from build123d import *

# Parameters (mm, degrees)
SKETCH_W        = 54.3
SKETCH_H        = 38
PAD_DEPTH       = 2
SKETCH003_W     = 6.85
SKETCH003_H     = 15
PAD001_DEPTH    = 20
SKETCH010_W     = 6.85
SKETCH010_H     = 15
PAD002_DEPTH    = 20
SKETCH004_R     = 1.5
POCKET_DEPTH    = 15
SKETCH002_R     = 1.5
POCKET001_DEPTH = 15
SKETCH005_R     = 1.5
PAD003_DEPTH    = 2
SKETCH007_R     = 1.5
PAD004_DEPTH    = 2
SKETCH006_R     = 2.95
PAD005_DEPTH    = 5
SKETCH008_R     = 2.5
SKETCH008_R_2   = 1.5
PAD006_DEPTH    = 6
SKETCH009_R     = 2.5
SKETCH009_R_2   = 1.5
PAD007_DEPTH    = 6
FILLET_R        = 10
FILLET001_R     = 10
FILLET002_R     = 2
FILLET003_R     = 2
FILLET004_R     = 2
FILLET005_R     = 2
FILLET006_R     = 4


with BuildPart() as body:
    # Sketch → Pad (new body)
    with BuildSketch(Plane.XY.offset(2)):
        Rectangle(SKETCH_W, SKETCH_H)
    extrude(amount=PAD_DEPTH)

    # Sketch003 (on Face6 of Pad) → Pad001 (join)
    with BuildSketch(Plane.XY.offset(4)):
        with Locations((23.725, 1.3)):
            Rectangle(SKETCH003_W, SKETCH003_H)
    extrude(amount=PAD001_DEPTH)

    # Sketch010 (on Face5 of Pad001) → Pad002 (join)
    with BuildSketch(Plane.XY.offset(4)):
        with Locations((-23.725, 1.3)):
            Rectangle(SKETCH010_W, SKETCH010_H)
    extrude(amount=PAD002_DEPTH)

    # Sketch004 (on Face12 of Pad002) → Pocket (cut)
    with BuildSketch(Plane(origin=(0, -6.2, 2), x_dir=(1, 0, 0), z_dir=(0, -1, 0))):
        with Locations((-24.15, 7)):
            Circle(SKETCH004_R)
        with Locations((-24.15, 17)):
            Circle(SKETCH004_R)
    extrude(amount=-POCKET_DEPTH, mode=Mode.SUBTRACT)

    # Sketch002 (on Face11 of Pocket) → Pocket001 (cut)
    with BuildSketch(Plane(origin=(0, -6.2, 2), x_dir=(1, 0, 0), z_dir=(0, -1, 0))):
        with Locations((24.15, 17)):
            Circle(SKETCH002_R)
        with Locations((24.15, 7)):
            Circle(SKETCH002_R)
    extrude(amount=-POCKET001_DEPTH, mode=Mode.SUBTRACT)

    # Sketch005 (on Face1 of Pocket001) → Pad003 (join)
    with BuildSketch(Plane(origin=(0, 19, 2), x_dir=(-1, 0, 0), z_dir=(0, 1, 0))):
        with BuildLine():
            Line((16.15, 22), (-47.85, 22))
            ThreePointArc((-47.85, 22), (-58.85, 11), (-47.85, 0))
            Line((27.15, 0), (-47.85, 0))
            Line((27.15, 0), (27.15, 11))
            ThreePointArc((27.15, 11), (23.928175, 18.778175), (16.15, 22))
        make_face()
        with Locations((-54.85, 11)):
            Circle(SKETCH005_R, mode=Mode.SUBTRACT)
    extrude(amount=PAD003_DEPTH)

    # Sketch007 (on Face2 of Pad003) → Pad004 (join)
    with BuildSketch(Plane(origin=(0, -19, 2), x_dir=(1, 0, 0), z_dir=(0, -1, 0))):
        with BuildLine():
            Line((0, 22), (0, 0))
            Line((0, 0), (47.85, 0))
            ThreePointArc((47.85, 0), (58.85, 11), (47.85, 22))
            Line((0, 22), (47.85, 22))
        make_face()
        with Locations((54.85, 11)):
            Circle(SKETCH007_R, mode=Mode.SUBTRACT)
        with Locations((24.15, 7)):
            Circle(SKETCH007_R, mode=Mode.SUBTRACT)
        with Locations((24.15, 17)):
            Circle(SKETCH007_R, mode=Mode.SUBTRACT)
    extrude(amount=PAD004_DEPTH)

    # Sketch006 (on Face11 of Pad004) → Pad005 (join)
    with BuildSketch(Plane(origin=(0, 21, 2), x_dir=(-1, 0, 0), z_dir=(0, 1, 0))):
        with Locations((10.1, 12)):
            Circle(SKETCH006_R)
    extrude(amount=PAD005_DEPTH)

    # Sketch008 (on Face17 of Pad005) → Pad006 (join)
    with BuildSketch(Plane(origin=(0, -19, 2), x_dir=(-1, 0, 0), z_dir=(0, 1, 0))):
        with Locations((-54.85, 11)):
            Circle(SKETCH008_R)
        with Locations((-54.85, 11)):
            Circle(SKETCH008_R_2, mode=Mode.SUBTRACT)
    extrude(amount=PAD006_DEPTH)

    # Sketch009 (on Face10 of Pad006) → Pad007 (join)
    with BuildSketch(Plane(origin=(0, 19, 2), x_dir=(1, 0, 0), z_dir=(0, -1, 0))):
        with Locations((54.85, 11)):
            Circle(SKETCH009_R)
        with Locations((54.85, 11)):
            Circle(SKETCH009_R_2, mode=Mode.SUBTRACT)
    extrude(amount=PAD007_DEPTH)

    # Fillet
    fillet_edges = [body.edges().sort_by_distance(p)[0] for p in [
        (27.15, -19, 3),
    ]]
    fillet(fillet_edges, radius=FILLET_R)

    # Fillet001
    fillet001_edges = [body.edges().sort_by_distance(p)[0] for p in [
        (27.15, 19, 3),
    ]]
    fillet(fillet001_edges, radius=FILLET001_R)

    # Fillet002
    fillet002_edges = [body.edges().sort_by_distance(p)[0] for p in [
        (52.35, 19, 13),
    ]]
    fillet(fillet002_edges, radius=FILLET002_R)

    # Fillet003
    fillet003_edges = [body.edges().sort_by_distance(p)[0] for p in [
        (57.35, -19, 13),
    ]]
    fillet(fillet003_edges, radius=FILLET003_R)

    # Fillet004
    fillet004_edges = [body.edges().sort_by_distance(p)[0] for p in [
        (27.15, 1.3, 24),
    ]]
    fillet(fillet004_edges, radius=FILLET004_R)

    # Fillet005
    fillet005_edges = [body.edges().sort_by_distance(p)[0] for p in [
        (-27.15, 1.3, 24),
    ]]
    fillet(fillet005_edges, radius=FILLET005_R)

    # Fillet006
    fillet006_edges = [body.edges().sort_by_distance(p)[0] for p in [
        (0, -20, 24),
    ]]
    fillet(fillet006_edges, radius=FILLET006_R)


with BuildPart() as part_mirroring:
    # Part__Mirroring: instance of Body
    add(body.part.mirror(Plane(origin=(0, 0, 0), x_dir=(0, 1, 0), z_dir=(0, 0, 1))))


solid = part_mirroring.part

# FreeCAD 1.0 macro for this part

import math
import FreeCAD as App
import Part
import Sketcher
from FreeCAD import Vector


def edges_at(feature, points):
    """Names of the edges that pass closest to the given points."""
    edges = feature.Shape.Edges
    near = lambda p: min(range(len(edges)), key=lambda i: edges[i].distToShape(Part.Vertex(*p))[0])
    return sorted({f"Edge{near(p) + 1}" for p in points})


def add_polygon(sketch, points):
    """Adds a closed chain of lines whose ends are joined by coincident constraints."""
    first, n = sketch.GeometryCount, len(points)
    for a, b in zip(points, points[1:] + points[:1]):
        sketch.addGeometry(Part.LineSegment(App.Vector(*a, 0), App.Vector(*b, 0)), False)
    for i in range(n):
        sketch.addConstraint(Sketcher.Constraint("Coincident", first + i, 2, first + (i + 1) % n, 1))

doc = App.newDocument("Part")
body = doc.addObject("PartDesign::Body", "Body")

# Sketch on XY plane
sketch1 = body.newObject("Sketcher::SketchObject", "Sketch")
sketch1.AttachmentSupport = (doc.getObject("XY_Plane"), [""])
sketch1.MapMode = "FlatFace"
sketch1.AttachmentOffset = App.Placement(Vector(0, 0, 2), App.Rotation())
add_polygon(sketch1, [(-27, 19), (-27, -19), (27, -19), (27, 19)])  # lines 0-3
sketch1.addConstraint(Sketcher.Constraint("Vertical", 0))
sketch1.addConstraint(Sketcher.Constraint("Horizontal", 1))
sketch1.addConstraint(Sketcher.Constraint("Vertical", 2))
sketch1.addConstraint(Sketcher.Constraint("Horizontal", 3))
sketch1.addConstraint(Sketcher.Constraint("Symmetric", 0, 2, 2, 2, -1, 1))
sketch1.addConstraint(Sketcher.Constraint("DistanceY", 0, 2, 0, 1, 38.0))
sketch1.addConstraint(Sketcher.Constraint("DistanceX", 1, 1, 1, 2, 54.3))
pad1 = body.newObject("PartDesign::Pad", "Pad")
pad1.Profile = sketch1
pad1.Length = 2

# Sketch on XY plane
sketch2 = body.newObject("Sketcher::SketchObject", "Sketch001")
sketch2.AttachmentSupport = (doc.getObject("XY_Plane"), [""])
sketch2.MapMode = "FlatFace"
sketch2.AttachmentOffset = App.Placement(Vector(0, 0, 4), App.Rotation())
add_polygon(sketch2, [(20, 9), (20, -6), (27, -6), (27, 9)])  # lines 0-3
sketch2.addConstraint(Sketcher.Constraint("Vertical", 0))
sketch2.addConstraint(Sketcher.Constraint("Horizontal", 1))
sketch2.addConstraint(Sketcher.Constraint("Vertical", 2))
sketch2.addConstraint(Sketcher.Constraint("Horizontal", 3))
sketch2.addConstraint(Sketcher.Constraint("DistanceY", 0, 2, 0, 1, 15.0))
sketch2.addConstraint(Sketcher.Constraint("DistanceX", 1, 1, 1, 2, 6.85))
sketch2.addConstraint(Sketcher.Constraint("DistanceX", -1, 1, 0, 2, 20.3))
sketch2.addConstraint(Sketcher.Constraint("DistanceY", 0, 2, -1, 1, 6.2))
pad2 = body.newObject("PartDesign::Pad", "Pad001")
pad2.Profile = sketch2
pad2.Length = 20

# Sketch on XY plane
sketch3 = body.newObject("Sketcher::SketchObject", "Sketch002")
sketch3.AttachmentSupport = (doc.getObject("XY_Plane"), [""])
sketch3.MapMode = "FlatFace"
sketch3.AttachmentOffset = App.Placement(Vector(0, 0, 4), App.Rotation())
add_polygon(sketch3, [(-27, 9), (-27, -6), (-20, -6), (-20, 9)])  # lines 0-3
sketch3.addConstraint(Sketcher.Constraint("Vertical", 0))
sketch3.addConstraint(Sketcher.Constraint("Horizontal", 1))
sketch3.addConstraint(Sketcher.Constraint("Vertical", 2))
sketch3.addConstraint(Sketcher.Constraint("Horizontal", 3))
sketch3.addConstraint(Sketcher.Constraint("DistanceY", 0, 2, 0, 1, 15.0))
sketch3.addConstraint(Sketcher.Constraint("DistanceX", 1, 1, 1, 2, 6.85))
sketch3.addConstraint(Sketcher.Constraint("DistanceY", 0, 2, -1, 1, 6.2))
sketch3.addConstraint(Sketcher.Constraint("DistanceX", 1, 2, -1, 1, 20.3))
pad3 = body.newObject("PartDesign::Pad", "Pad002")
pad3.Profile = sketch3
pad3.Length = 20

# Sketch on XZ plane
sketch4 = body.newObject("Sketcher::SketchObject", "Sketch003")
sketch4.AttachmentSupport = (doc.getObject("XZ_Plane"), [""])
sketch4.MapMode = "FlatFace"
sketch4.AttachmentOffset = App.Placement(Vector(0, 0, 6.2), App.Rotation())
sketch4.addGeometry(Part.Circle(Vector(-24.1, 9, 0), Vector(0, 0, 1), 1.5), False)
sketch4.addGeometry(Part.Circle(Vector(-24.1, 19, 0), Vector(0, 0, 1), 1.5), False)
sketch4.addConstraint(Sketcher.Constraint("Equal", 0, 1))
sketch4.addConstraint(Sketcher.Constraint("Vertical", 0, 3, 1, 3))
sketch4.addConstraint(Sketcher.Constraint("Diameter", 0, 3.0))
sketch4.addConstraint(Sketcher.Constraint("DistanceY", -1, 1, 0, 3, 9.0))
sketch4.addConstraint(Sketcher.Constraint("DistanceY", -1, 1, 1, 3, 19.0))
sketch4.addConstraint(Sketcher.Constraint("DistanceX", 0, 3, -1, 1, 24.15))
pocket1 = body.newObject("PartDesign::Pocket", "Pocket")
pocket1.Profile = sketch4
pocket1.Length = 15

# Sketch on XZ plane
sketch5 = body.newObject("Sketcher::SketchObject", "Sketch004")
sketch5.AttachmentSupport = (doc.getObject("XZ_Plane"), [""])
sketch5.MapMode = "FlatFace"
sketch5.AttachmentOffset = App.Placement(Vector(0, 0, 6.2), App.Rotation())
sketch5.addGeometry(Part.Circle(Vector(24.1, 19, 0), Vector(0, 0, 1), 1.5), False)
sketch5.addGeometry(Part.Circle(Vector(24.1, 9, 0), Vector(0, 0, 1), 1.5), False)
sketch5.addConstraint(Sketcher.Constraint("Equal", 0, 1))
sketch5.addConstraint(Sketcher.Constraint("Vertical", 0, 3, 1, 3))
sketch5.addConstraint(Sketcher.Constraint("Diameter", 0, 3.0))
sketch5.addConstraint(Sketcher.Constraint("DistanceY", -1, 1, 0, 3, 19.0))
sketch5.addConstraint(Sketcher.Constraint("DistanceY", -1, 1, 1, 3, 9.0))
sketch5.addConstraint(Sketcher.Constraint("DistanceX", -1, 1, 0, 3, 24.15))
pocket2 = body.newObject("PartDesign::Pocket", "Pocket001")
pocket2.Profile = sketch5
pocket2.Length = 15

# Sketch on XZ plane
sketch6 = body.newObject("Sketcher::SketchObject", "Sketch005")
sketch6.AttachmentSupport = (doc.getObject("XZ_Plane"), [""])
sketch6.MapMode = "FlatFace"
sketch6.AttachmentOffset = App.Placement(Vector(0, 0, -19), App.Rotation())
sketch6.addGeometry(Part.LineSegment(Vector(-16.1, 24, 0), Vector(47.9, 24, 0)), False)
sketch6.addGeometry(Part.ArcOfCircle(Part.Circle(Vector(47.9, 13, 0), Vector(0, 0, 1), 11), math.radians(-90), math.radians(90)), False)
sketch6.addGeometry(Part.LineSegment(Vector(47.9, 2, 0), Vector(-27.1, 2, 0)), False)
sketch6.addGeometry(Part.LineSegment(Vector(-27.1, 2, 0), Vector(-27.1, 13, 0)), False)
sketch6.addGeometry(Part.ArcOfCircle(Part.Circle(Vector(-16.2, 13, 0), Vector(0, 0, 1), 11), math.radians(90), math.radians(180)), False)
sketch6.addGeometry(Part.Circle(Vector(54.9, 13, 0), Vector(0, 0, 1), 1.5), False)
sketch6.addConstraint(Sketcher.Constraint("Tangent", 0, 2, 1, 2))
sketch6.addConstraint(Sketcher.Constraint("Tangent", 1, 1, 2, 1))
sketch6.addConstraint(Sketcher.Constraint("Coincident", 2, 2, 3, 1))
sketch6.addConstraint(Sketcher.Constraint("Tangent", 3, 2, 4, 2))
sketch6.addConstraint(Sketcher.Constraint("Tangent", 4, 1, 0, 1))
sketch6.addConstraint(Sketcher.Constraint("Horizontal", 0))
sketch6.addConstraint(Sketcher.Constraint("Horizontal", 2))
sketch6.addConstraint(Sketcher.Constraint("Vertical", 3))
sketch6.addConstraint(Sketcher.Constraint("Equal", 1, 4))
sketch6.addConstraint(Sketcher.Constraint("Horizontal", 4, 3, 5, 3))
sketch6.addConstraint(Sketcher.Constraint("Diameter", 5, 3.0))
sketch6.addConstraint(Sketcher.Constraint("Radius", 1, 11.0))
sketch6.addConstraint(Sketcher.Constraint("DistanceX", 0, 1, 0, 2, 64.0))
sketch6.addConstraint(Sketcher.Constraint("DistanceY", -1, 1, 1, 3, 13.0))
sketch6.addConstraint(Sketcher.Constraint("DistanceX", 1, 3, 5, 3, 7.0))
sketch6.addConstraint(Sketcher.Constraint("DistanceX", -1, 1, 1, 3, 47.85))
pad4 = body.newObject("PartDesign::Pad", "Pad003")
pad4.Profile = sketch6
pad4.Length = 2
pad4.Reversed = True

# Sketch on XZ plane
sketch7 = body.newObject("Sketcher::SketchObject", "Sketch006")
sketch7.AttachmentSupport = (doc.getObject("XZ_Plane"), [""])
sketch7.MapMode = "FlatFace"
sketch7.AttachmentOffset = App.Placement(Vector(0, 0, 19), App.Rotation())
sketch7.addGeometry(Part.LineSegment(Vector(0, 24, 0), Vector(0, 2, 0)), False)
sketch7.addGeometry(Part.LineSegment(Vector(0, 2, 0), Vector(47.9, 2, 0)), False)
sketch7.addGeometry(Part.ArcOfCircle(Part.Circle(Vector(47.9, 13, 0), Vector(0, 0, 1), 11), math.radians(-90), math.radians(90)), False)
sketch7.addGeometry(Part.LineSegment(Vector(47.9, 24, 0), Vector(0, 24, 0)), False)
sketch7.addGeometry(Part.Circle(Vector(24.1, 9, 0), Vector(0, 0, 1), 1.5), False)
sketch7.addGeometry(Part.Circle(Vector(54.9, 13, 0), Vector(0, 0, 1), 1.5), False)
sketch7.addGeometry(Part.Circle(Vector(24.1, 19, 0), Vector(0, 0, 1), 1.5), False)
sketch7.addConstraint(Sketcher.Constraint("Coincident", 0, 2, 1, 1))
sketch7.addConstraint(Sketcher.Constraint("Tangent", 1, 2, 2, 1))
sketch7.addConstraint(Sketcher.Constraint("Tangent", 2, 2, 3, 1))
sketch7.addConstraint(Sketcher.Constraint("Coincident", 3, 2, 0, 1))
sketch7.addConstraint(Sketcher.Constraint("Vertical", 0))
sketch7.addConstraint(Sketcher.Constraint("Horizontal", 1))
sketch7.addConstraint(Sketcher.Constraint("Horizontal", 3))
sketch7.addConstraint(Sketcher.Constraint("Equal", 4, 5))
sketch7.addConstraint(Sketcher.Constraint("Equal", 5, 6))
sketch7.addConstraint(Sketcher.Constraint("PointOnObject", 0, 2, -2))
sketch7.addConstraint(Sketcher.Constraint("Horizontal", 2, 3, 5, 3))
sketch7.addConstraint(Sketcher.Constraint("Vertical", 4, 3, 6, 3))
sketch7.addConstraint(Sketcher.Constraint("Diameter", 4, 3.0))
sketch7.addConstraint(Sketcher.Constraint("Radius", 2, 11.0))
sketch7.addConstraint(Sketcher.Constraint("DistanceY", -1, 1, 2, 3, 13.0))
sketch7.addConstraint(Sketcher.Constraint("DistanceY", -1, 1, 4, 3, 9.0))
sketch7.addConstraint(Sketcher.Constraint("DistanceY", -1, 1, 6, 3, 19.0))
sketch7.addConstraint(Sketcher.Constraint("DistanceX", 2, 3, 5, 3, 7.0))
sketch7.addConstraint(Sketcher.Constraint("DistanceX", 1, 1, 1, 2, 47.85))
sketch7.addConstraint(Sketcher.Constraint("DistanceX", 4, 3, 2, 3, 23.7))
pad5 = body.newObject("PartDesign::Pad", "Pad004")
pad5.Profile = sketch7
pad5.Length = 2

# Sketch on XZ plane
sketch8 = body.newObject("Sketcher::SketchObject", "Sketch007")
sketch8.AttachmentSupport = (doc.getObject("XZ_Plane"), [""])
sketch8.MapMode = "FlatFace"
sketch8.AttachmentOffset = App.Placement(Vector(0, 0, -21), App.Rotation())
sketch8.addGeometry(Part.Circle(Vector(-10.1, 14, 0), Vector(0, 0, 1), 3), False)
sketch8.addConstraint(Sketcher.Constraint("Diameter", 0, 5.9))
sketch8.addConstraint(Sketcher.Constraint("DistanceY", -1, 1, 0, 3, 14.0))
sketch8.addConstraint(Sketcher.Constraint("DistanceX", 0, 3, -1, 1, 10.1))
pad6 = body.newObject("PartDesign::Pad", "Pad005")
pad6.Profile = sketch8
pad6.Length = 5
pad6.Reversed = True

# Sketch on XZ plane
sketch9 = body.newObject("Sketcher::SketchObject", "Sketch008")
sketch9.AttachmentSupport = (doc.getObject("XZ_Plane"), [""])
sketch9.MapMode = "FlatFace"
sketch9.AttachmentOffset = App.Placement(Vector(0, 0, 19), App.Rotation())
sketch9.addGeometry(Part.Circle(Vector(54.9, 13, 0), Vector(0, 0, 1), 2.5), False)
sketch9.addGeometry(Part.Circle(Vector(54.9, 13, 0), Vector(0, 0, 1), 1.5), False)
sketch9.addConstraint(Sketcher.Constraint("Coincident", 1, 3, 0, 3))
sketch9.addConstraint(Sketcher.Constraint("Diameter", 0, 5.0))
sketch9.addConstraint(Sketcher.Constraint("Diameter", 1, 3.0))
sketch9.addConstraint(Sketcher.Constraint("DistanceY", -1, 1, 0, 3, 13.0))
sketch9.addConstraint(Sketcher.Constraint("DistanceX", -1, 1, 0, 3, 54.85))
pad7 = body.newObject("PartDesign::Pad", "Pad006")
pad7.Profile = sketch9
pad7.Length = 6
pad7.Reversed = True

# Sketch on XZ plane
sketch10 = body.newObject("Sketcher::SketchObject", "Sketch009")
sketch10.AttachmentSupport = (doc.getObject("XZ_Plane"), [""])
sketch10.MapMode = "FlatFace"
sketch10.AttachmentOffset = App.Placement(Vector(0, 0, -19), App.Rotation())
sketch10.addGeometry(Part.Circle(Vector(54.9, 13, 0), Vector(0, 0, 1), 2.5), False)
sketch10.addGeometry(Part.Circle(Vector(54.9, 13, 0), Vector(0, 0, 1), 1.5), False)
sketch10.addConstraint(Sketcher.Constraint("Coincident", 1, 3, 0, 3))
sketch10.addConstraint(Sketcher.Constraint("Diameter", 0, 5.0))
sketch10.addConstraint(Sketcher.Constraint("Diameter", 1, 3.0))
sketch10.addConstraint(Sketcher.Constraint("DistanceY", -1, 1, 0, 3, 13.0))
sketch10.addConstraint(Sketcher.Constraint("DistanceX", -1, 1, 0, 3, 54.85))
pad8 = body.newObject("PartDesign::Pad", "Pad007")
pad8.Profile = sketch10
pad8.Length = 6
doc.recompute()

fillet = body.newObject("PartDesign::Fillet", "Fillet")
fillet.Base = (pad8, edges_at(pad8, [(27.15, -19, 3)]))
fillet.Radius = 10
doc.recompute()

fillet2 = body.newObject("PartDesign::Fillet", "Fillet001")
fillet2.Base = (fillet, edges_at(fillet, [(27.15, 19, 3)]))
fillet2.Radius = 10
doc.recompute()

fillet3 = body.newObject("PartDesign::Fillet", "Fillet002")
fillet3.Base = (fillet2, edges_at(fillet2, [(52.35, 19, 13)]))
fillet3.Radius = 2
doc.recompute()

fillet4 = body.newObject("PartDesign::Fillet", "Fillet003")
fillet4.Base = (fillet3, edges_at(fillet3, [(57.35, -19, 13)]))
fillet4.Radius = 2
doc.recompute()

fillet5 = body.newObject("PartDesign::Fillet", "Fillet004")
fillet5.Base = (fillet4, edges_at(fillet4, [(27.15, 1.3, 24)]))
fillet5.Radius = 2
doc.recompute()

fillet6 = body.newObject("PartDesign::Fillet", "Fillet005")
fillet6.Base = (fillet5, edges_at(fillet5, [(-27.15, 1.3, 24)]))
fillet6.Radius = 2
doc.recompute()

fillet7 = body.newObject("PartDesign::Fillet", "Fillet006")
fillet7.Base = (fillet6, edges_at(fillet6, [(0, -20, 24)]))
fillet7.Radius = 4
body2 = doc.addObject("PartDesign::Body", "Body001")
doc.recompute()

mirroring = doc.addObject("Part::Mirroring", "Mirroring")
mirroring.Source = body
mirroring.Base = Vector(0, 0, 0)
mirroring.Normal = Vector(0, 0, 1)
body2.BaseFeature = mirroring
doc.recompute()
body.Visibility = False
mirroring.Visibility = False

doc.recompute()
